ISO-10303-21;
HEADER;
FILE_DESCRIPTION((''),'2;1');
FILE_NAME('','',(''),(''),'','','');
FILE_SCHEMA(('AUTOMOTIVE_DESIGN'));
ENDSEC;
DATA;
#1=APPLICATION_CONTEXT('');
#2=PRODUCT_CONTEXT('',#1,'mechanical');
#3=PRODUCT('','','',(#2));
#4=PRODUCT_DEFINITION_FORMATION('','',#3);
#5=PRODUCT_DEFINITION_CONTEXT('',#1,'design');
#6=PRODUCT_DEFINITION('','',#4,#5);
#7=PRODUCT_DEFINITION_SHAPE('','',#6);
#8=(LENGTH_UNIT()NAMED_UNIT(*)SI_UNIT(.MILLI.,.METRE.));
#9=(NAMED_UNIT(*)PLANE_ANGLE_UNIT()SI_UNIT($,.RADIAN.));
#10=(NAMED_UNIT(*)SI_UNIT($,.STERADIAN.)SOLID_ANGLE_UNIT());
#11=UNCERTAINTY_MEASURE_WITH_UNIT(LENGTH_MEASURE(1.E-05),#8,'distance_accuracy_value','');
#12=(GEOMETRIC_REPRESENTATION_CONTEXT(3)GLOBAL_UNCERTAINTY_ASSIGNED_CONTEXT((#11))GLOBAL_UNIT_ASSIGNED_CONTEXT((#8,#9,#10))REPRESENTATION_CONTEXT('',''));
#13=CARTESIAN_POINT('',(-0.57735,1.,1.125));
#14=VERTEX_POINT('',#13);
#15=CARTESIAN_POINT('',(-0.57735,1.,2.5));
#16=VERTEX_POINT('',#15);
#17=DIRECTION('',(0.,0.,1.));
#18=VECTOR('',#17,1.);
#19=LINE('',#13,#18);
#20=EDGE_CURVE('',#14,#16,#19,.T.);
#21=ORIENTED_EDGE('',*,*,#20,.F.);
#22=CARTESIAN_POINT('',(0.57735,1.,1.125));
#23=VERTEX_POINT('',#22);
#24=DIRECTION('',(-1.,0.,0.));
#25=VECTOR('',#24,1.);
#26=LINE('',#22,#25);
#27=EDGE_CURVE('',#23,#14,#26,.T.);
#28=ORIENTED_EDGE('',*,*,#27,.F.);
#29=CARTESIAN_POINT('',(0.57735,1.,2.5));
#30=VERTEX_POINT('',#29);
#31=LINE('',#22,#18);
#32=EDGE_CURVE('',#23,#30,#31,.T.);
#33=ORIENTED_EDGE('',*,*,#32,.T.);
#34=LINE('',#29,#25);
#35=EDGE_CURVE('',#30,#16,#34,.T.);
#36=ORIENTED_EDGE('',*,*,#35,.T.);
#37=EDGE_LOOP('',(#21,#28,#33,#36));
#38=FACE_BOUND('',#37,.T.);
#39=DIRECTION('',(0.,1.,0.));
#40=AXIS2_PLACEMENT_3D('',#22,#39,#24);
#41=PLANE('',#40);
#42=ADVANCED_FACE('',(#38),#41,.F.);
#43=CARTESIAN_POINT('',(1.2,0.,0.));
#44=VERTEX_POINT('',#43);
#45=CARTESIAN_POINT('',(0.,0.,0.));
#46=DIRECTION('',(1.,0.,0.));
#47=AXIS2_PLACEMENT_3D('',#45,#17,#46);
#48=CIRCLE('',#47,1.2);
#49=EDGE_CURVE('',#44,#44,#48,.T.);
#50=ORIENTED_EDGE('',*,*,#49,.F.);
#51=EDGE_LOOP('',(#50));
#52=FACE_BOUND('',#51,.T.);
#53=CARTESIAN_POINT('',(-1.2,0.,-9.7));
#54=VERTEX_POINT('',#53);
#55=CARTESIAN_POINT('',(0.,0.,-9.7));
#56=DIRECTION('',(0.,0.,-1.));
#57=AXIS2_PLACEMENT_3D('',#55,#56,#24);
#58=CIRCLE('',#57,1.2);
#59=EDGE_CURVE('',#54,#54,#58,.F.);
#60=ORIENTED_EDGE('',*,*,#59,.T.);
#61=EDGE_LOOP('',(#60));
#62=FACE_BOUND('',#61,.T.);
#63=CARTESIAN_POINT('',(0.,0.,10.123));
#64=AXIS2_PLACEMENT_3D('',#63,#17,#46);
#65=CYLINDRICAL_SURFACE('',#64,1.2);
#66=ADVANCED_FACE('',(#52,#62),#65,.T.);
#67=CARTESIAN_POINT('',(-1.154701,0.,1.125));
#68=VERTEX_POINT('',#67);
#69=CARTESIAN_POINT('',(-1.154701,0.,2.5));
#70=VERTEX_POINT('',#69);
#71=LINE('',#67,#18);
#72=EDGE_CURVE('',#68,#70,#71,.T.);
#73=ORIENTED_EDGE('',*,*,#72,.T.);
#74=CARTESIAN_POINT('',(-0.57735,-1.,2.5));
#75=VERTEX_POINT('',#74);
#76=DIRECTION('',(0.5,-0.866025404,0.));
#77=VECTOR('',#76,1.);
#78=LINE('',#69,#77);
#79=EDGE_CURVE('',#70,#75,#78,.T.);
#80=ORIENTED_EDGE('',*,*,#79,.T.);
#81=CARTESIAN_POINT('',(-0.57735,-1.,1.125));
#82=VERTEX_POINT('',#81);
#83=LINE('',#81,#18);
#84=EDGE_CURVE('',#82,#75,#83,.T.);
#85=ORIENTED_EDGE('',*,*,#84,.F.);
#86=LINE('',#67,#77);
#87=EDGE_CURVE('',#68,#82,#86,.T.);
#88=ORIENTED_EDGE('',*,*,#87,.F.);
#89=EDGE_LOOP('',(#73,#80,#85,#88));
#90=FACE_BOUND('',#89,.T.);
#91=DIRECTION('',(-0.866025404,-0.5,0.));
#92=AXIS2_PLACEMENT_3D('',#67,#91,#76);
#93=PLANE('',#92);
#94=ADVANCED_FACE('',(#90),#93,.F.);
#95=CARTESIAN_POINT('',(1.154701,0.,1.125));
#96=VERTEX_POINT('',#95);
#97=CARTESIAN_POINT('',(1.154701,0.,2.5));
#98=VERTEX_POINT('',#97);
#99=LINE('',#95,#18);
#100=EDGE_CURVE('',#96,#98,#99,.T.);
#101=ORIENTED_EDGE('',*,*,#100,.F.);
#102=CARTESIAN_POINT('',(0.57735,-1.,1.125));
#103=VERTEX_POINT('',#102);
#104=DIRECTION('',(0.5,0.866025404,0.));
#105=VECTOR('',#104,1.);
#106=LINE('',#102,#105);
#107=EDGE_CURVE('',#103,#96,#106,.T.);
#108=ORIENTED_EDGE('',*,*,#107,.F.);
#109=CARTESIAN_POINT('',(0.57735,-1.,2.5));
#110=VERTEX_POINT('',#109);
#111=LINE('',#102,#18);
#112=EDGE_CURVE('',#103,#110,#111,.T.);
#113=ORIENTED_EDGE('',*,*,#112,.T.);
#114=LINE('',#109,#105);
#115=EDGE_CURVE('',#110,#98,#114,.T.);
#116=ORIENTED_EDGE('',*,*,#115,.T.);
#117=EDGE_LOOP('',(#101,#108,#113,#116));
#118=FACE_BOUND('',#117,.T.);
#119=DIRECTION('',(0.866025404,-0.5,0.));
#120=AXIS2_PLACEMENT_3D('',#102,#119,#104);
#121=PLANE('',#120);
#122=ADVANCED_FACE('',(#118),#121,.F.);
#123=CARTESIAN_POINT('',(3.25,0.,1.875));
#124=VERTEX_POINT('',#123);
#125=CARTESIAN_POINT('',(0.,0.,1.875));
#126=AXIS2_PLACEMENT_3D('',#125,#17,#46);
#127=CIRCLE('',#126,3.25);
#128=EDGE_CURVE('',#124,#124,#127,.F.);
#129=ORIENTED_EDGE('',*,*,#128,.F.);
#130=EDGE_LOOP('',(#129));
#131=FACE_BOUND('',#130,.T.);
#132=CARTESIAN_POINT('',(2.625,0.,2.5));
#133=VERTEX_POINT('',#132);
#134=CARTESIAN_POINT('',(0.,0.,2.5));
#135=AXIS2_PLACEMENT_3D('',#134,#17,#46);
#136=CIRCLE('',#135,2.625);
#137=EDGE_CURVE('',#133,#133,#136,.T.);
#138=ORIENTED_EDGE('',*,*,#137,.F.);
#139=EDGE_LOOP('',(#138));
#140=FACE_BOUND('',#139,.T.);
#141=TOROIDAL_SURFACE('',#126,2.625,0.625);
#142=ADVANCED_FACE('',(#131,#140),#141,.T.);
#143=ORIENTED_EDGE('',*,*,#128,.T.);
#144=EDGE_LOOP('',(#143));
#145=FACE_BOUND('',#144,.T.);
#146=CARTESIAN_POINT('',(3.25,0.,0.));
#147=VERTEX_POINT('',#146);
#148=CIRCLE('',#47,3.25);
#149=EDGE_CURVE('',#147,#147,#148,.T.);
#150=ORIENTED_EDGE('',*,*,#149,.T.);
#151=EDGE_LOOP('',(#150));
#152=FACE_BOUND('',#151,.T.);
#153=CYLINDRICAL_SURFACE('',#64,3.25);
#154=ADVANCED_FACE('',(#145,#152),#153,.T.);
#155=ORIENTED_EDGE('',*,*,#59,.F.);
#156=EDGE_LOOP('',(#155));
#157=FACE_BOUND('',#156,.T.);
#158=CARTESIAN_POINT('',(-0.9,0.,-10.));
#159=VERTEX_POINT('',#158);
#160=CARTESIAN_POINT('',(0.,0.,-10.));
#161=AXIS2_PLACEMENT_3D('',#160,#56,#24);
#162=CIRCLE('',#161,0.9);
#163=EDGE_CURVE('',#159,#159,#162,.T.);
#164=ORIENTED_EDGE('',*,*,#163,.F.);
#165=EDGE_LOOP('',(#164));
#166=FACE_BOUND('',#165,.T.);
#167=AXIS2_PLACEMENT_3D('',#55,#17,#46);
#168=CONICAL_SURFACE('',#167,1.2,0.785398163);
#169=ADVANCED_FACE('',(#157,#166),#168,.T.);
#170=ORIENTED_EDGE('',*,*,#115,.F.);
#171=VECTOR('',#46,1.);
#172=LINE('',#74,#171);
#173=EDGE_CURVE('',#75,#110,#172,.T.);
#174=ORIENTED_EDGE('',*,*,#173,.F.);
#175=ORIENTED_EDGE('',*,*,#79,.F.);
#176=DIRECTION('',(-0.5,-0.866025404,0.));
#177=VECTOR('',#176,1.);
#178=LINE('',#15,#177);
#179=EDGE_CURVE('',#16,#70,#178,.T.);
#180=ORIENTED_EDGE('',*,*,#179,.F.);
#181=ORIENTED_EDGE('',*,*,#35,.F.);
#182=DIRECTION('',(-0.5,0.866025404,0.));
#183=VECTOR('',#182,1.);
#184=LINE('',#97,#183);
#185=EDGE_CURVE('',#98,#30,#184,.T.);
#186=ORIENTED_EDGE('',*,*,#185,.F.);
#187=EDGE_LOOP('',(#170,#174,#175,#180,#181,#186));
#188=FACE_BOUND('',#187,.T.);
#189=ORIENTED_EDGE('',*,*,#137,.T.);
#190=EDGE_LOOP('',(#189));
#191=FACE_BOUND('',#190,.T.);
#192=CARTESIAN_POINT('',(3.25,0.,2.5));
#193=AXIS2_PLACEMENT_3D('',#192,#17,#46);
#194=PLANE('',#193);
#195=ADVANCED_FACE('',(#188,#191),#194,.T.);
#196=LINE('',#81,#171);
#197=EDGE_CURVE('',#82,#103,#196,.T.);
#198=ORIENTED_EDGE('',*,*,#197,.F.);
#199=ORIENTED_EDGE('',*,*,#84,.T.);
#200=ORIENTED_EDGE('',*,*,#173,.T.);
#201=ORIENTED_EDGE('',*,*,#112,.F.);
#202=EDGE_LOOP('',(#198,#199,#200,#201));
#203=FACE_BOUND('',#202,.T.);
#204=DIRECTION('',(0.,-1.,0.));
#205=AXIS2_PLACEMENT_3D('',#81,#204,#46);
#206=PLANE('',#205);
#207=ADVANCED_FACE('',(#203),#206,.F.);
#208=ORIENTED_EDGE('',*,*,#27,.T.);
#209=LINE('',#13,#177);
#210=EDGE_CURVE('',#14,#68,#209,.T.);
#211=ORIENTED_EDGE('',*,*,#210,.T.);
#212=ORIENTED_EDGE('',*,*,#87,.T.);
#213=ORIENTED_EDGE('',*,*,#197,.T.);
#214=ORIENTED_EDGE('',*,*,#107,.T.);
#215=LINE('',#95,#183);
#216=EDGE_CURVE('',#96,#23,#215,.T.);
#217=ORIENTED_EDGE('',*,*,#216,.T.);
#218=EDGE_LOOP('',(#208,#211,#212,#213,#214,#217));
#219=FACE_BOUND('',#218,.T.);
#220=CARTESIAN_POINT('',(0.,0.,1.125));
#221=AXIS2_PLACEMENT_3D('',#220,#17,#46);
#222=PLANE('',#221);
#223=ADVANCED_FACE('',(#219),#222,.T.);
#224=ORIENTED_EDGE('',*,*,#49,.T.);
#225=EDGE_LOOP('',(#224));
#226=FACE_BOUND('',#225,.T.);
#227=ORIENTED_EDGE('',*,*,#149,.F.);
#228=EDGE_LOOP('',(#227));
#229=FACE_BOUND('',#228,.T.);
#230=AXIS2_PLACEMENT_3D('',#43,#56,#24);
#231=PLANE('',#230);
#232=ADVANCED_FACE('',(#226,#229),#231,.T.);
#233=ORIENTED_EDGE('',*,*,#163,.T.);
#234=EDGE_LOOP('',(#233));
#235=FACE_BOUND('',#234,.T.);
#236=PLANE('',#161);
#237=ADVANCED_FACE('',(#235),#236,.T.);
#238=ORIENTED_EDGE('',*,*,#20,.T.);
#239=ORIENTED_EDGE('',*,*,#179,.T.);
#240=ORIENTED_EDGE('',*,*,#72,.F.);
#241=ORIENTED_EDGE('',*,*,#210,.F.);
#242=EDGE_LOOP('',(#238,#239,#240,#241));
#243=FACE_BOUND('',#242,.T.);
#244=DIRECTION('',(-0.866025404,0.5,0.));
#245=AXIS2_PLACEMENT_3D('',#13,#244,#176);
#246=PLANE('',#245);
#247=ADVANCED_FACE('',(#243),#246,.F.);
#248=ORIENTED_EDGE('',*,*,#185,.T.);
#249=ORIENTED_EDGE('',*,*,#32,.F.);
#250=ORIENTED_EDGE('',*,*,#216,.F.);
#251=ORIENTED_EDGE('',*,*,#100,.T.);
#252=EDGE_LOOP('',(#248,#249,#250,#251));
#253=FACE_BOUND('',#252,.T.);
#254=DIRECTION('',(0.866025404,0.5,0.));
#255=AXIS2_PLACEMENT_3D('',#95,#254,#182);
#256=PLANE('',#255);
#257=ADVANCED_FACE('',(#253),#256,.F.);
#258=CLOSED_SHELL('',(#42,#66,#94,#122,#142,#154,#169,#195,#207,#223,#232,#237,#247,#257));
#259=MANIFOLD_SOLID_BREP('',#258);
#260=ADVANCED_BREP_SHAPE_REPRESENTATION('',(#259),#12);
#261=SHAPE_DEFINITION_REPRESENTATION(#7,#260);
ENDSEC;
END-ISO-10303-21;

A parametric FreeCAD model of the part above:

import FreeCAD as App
import Part
import Sketcher
from FreeCAD import Vector
Q = App.Units.Quantity


def edges_at(feature, points):
    """Names of the edges that pass closest to the given points."""
    edges = feature.Shape.Edges
    near = lambda p: min(range(len(edges)), key=lambda i: edges[i].distToShape(Part.Vertex(*p))[0])
    return sorted({f"Edge{near(p) + 1}" for p in points})


def add_polygon(sketch, points):
    """Adds a closed chain of lines whose ends are joined by coincident constraints."""
    first, n = sketch.GeometryCount, len(points)
    for a, b in zip(points, points[1:] + points[:1]):
        sketch.addGeometry(Part.LineSegment(App.Vector(*a, 0), App.Vector(*b, 0)), False)
    for i in range(n):
        sketch.addConstraint(Sketcher.Constraint("Coincident", first + i, 2, first + (i + 1) % n, 1))

doc = App.newDocument("Part")
body = doc.addObject("PartDesign::Body", "Body")

# Sketch on XZ plane
sketch1 = body.newObject("Sketcher::SketchObject", "Sketch")
sketch1.AttachmentSupport = (doc.getObject("XZ_Plane"), [""])
sketch1.MapMode = "FlatFace"
add_polygon(sketch1, [(1.2, -10), (0, -10), (0, 2.5), (3.25, 2.5), (3.25, 0), (1.2, 0)])  # lines 0-5
sketch1.addConstraint([
    Sketcher.Constraint("Horizontal", 0),
    Sketcher.Constraint("Vertical", 1),
    Sketcher.Constraint("Horizontal", 2),
    Sketcher.Constraint("Vertical", 3),
    Sketcher.Constraint("Horizontal", 4),
    Sketcher.Constraint("Vertical", 5),
    Sketcher.Constraint("PointOnObject", 0, 2, -2),
    Sketcher.Constraint("PointOnObject", 3, 2, -1),
    Sketcher.Constraint("DistanceY", 5, 2, 5, 1, 10.0),
    Sketcher.Constraint("DistanceX", 0, 2, 0, 1, 1.2),
    Sketcher.Constraint("DistanceY", 1, 1, 1, 2, 12.5),
    Sketcher.Constraint("DistanceX", 2, 1, 2, 2, 3.25),
])
revolution = body.newObject("PartDesign::Revolution", "Revolution")
revolution.Profile = sketch1
revolution.ReferenceAxis = (sketch1, ["V_Axis"])
revolution.Angle = 360
doc.recompute()

chamfer = body.newObject("PartDesign::Chamfer", "Chamfer")
chamfer.Base = (revolution, edges_at(revolution, [(-1.2, 0, -10)]))
chamfer.Size = 0.3
doc.recompute()

fillet = body.newObject("PartDesign::Fillet", "Fillet")
fillet.Base = (chamfer, edges_at(chamfer, [(-3.25, 0, 2.5)]))
fillet.Radius = 0.625

# Sketch on XY plane
sketch2 = body.newObject("Sketcher::SketchObject", "Sketch001")
sketch2.AttachmentSupport = (doc.getObject("XY_Plane"), [""])
sketch2.MapMode = "FlatFace"
sketch2.AttachmentOffset = App.Placement(Vector(0, 0, 2.5), App.Rotation())
add_polygon(sketch2, [(1.154701, 0), (0.57735, 1), (-0.57735, 1), (-1.154701, 0), (-0.57735, -1), (0.57735, -1)])  # lines 0-5
sketch2.addConstraint([
    Sketcher.Constraint("Horizontal", 1),
    Sketcher.Constraint("Horizontal", 4),
    Sketcher.Constraint("Symmetric", 0, 2, 3, 2, -1, 1),
    Sketcher.Constraint("Symmetric", 2, 2, 5, 2, -1, 1),
    Sketcher.Constraint("PointOnObject", 2, 2, -1),
    Sketcher.Constraint("Parallel", 2, 5),
    Sketcher.Constraint("Vertical", 1, 2, 3, 2),
    Sketcher.Constraint("Angle", 0, Q("120 deg")),
    Sketcher.Constraint("DistanceY", -1, 1, 0, 2, 1.0),
    Sketcher.Constraint("DistanceX", 1, 2, 1, 1, 1.154701),
])
pocket1 = body.newObject("PartDesign::Pocket", "Pocket")
pocket1.Profile = sketch2
pocket1.Length = 1.375

doc.recompute()
